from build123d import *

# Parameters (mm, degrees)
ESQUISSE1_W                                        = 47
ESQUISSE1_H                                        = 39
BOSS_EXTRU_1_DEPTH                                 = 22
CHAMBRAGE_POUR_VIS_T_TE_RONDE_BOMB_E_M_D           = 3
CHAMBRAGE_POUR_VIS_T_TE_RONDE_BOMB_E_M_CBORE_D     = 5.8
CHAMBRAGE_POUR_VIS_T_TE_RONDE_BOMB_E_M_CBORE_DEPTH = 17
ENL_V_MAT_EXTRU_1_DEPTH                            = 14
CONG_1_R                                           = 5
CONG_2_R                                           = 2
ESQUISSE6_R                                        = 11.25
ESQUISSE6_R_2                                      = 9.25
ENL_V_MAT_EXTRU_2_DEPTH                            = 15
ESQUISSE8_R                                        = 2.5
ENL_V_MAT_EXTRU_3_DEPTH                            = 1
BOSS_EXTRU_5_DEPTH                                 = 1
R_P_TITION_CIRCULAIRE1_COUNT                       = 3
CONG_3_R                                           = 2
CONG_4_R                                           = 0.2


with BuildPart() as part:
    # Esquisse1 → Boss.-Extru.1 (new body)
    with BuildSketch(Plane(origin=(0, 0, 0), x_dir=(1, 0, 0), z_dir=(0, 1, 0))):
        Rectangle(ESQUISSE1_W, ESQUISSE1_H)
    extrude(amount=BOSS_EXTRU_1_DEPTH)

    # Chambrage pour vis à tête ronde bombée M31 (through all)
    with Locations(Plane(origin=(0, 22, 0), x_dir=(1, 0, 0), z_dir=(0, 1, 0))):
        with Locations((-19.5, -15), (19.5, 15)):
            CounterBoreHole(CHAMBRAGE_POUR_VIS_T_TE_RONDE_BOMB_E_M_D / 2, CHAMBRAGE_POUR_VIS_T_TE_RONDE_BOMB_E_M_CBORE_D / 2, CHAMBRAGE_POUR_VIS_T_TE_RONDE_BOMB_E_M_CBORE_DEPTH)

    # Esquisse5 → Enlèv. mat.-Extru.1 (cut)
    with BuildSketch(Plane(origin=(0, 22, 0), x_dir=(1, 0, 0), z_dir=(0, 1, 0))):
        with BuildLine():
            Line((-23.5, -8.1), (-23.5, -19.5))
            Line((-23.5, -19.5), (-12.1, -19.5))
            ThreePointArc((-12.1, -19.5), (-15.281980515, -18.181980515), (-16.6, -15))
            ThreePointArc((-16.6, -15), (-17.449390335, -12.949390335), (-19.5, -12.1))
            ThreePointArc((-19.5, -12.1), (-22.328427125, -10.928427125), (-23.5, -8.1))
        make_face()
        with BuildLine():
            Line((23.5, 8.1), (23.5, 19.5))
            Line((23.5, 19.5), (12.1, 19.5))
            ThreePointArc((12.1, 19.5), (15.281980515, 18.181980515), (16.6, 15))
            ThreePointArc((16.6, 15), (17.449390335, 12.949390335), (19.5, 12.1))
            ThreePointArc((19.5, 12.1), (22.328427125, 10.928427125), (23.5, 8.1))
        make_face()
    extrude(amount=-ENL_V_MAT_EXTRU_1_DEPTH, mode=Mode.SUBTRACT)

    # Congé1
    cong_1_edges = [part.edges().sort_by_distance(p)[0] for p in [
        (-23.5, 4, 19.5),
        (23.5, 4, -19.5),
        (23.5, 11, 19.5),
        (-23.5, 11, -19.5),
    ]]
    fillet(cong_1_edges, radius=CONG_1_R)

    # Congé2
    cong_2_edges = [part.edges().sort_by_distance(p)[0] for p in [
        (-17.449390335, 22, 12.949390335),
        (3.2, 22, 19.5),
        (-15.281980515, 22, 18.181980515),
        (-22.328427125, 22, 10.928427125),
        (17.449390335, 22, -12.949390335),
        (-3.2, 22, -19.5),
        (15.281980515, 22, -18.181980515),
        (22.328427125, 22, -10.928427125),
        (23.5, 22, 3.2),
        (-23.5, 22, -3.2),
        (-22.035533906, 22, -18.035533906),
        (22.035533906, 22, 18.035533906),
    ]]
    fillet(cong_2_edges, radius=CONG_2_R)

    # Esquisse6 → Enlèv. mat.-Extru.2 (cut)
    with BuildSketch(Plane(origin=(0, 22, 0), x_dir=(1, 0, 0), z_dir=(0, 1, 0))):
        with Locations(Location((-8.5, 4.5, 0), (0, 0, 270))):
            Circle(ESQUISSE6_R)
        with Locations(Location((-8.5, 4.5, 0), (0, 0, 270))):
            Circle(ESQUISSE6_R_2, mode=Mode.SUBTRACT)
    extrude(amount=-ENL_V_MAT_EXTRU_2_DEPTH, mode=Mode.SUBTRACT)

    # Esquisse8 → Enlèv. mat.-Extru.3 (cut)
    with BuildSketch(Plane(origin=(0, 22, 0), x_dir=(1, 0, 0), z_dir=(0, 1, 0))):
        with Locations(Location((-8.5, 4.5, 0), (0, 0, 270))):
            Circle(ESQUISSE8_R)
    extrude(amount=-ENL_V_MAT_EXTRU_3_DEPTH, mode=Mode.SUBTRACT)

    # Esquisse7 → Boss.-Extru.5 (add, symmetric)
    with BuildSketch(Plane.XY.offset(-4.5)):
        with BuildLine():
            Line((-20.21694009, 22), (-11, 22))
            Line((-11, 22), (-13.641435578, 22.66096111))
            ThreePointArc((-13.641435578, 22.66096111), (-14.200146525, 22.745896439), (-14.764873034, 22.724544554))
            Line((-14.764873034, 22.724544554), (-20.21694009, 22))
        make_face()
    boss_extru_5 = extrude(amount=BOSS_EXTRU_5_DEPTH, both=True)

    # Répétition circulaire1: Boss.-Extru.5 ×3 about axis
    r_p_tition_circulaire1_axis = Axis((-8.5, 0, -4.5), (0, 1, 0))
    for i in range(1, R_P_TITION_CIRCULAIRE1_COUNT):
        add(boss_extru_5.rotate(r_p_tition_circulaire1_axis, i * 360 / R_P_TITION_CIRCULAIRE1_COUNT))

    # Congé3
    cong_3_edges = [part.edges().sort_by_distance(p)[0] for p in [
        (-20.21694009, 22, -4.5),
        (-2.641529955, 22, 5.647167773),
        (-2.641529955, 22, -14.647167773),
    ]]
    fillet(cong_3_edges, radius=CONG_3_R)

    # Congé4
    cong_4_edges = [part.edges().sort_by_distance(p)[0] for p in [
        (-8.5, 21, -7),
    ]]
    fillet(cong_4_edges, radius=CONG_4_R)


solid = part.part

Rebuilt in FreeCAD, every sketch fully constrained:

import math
import FreeCAD as App
import Part
import Sketcher

V = App.Vector
Q = App.Units.Quantity


def edges_at(feature, points):
    """Names of the edges that pass closest to the given points."""
    edges = feature.Shape.Edges
    near = lambda p: min(range(len(edges)), key=lambda i: edges[i].distToShape(Part.Vertex(*p))[0])
    return sorted({f"Edge{near(p) + 1}" for p in points})

doc = App.newDocument("Part")
body = doc.addObject("PartDesign::Body", "Body")

sketch1 = body.newObject("Sketcher::SketchObject", "Sketch")
sketch1.AttachmentSupport = (doc.getObject("XZ_Plane"), [""])
sketch1.MapMode = "FlatFace"
sketch1.addGeometry(Part.LineSegment(V(-24, -20, 0), V(-24, 20, 0)), False)
sketch1.addGeometry(Part.LineSegment(V(-24, 20, 0), V(24, 20, 0)), False)
sketch1.addGeometry(Part.LineSegment(V(24, 20, 0), V(24, -20, 0)), False)
sketch1.addGeometry(Part.LineSegment(V(24, -20, 0), V(-24, -20, 0)), False)
sketch1.addConstraint(Sketcher.Constraint("Coincident", 0, 2, 1, 1))
sketch1.addConstraint(Sketcher.Constraint("Coincident", 1, 2, 2, 1))
sketch1.addConstraint(Sketcher.Constraint("Coincident", 2, 2, 3, 1))
sketch1.addConstraint(Sketcher.Constraint("Coincident", 3, 2, 0, 1))
sketch1.addConstraint(Sketcher.Constraint("Vertical", 0))
sketch1.addConstraint(Sketcher.Constraint("Horizontal", 1))
sketch1.addConstraint(Sketcher.Constraint("Vertical", 2))
sketch1.addConstraint(Sketcher.Constraint("Horizontal", 3))
sketch1.addConstraint(Sketcher.Constraint("Symmetric", 0, 2, 2, 2, -1, 1))
sketch1.addConstraint(Sketcher.Constraint("DistanceX", 1, 1, 1, 2, Q("47 mm")))
sketch1.addConstraint(Sketcher.Constraint("DistanceY", 0, 1, 0, 2, Q("39 mm")))
pad1 = body.newObject("PartDesign::Pad", "Pad")
pad1.Profile = sketch1
pad1.Length = 22
pad1.Reversed = True

sketch2 = body.newObject("Sketcher::SketchObject", "Sketch001")
sketch2.AttachmentSupport = (doc.getObject("XZ_Plane"), [""])
sketch2.MapMode = "FlatFace"
sketch2.AttachmentOffset = App.Placement(V(0, 0, -22), App.Rotation())
sketch2.addGeometry(Part.Circle(V(-19.5, 15, 0), V(0, 0, 1), 1.5), False)
sketch2.addGeometry(Part.Circle(V(19.5, -15, 0), V(0, 0, 1), 1.5), False)
sketch2.addConstraint(Sketcher.Constraint("Equal", 0, 1))
sketch2.addConstraint(Sketcher.Constraint("Symmetric", 0, 3, 1, 3, -1, 1))
sketch2.addConstraint(Sketcher.Constraint("Diameter", 0, Q("3 mm")))
sketch2.addConstraint(Sketcher.Constraint("DistanceY", -1, 1, 0, 3, Q("15 mm")))
sketch2.addConstraint(Sketcher.Constraint("DistanceX", 0, 3, 1, 3, Q("39 mm")))
doc.recompute()
hole = body.newObject("PartDesign::Hole", "Hole")
hole.Profile = sketch2
hole.ThreadType = "None"
hole.Diameter = 3
hole.DepthType = "ThroughAll"
hole.HoleCutType = "Counterbore"
hole.HoleCutDiameter = 5.8
hole.HoleCutDepth = 17
hole.Reversed = True

sketch3 = body.newObject("Sketcher::SketchObject", "Sketch002")
sketch3.AttachmentSupport = (doc.getObject("XZ_Plane"), [""])
sketch3.MapMode = "FlatFace"
sketch3.AttachmentOffset = App.Placement(V(0, 0, -22), App.Rotation())
sketch3.addGeometry(Part.LineSegment(V(-23.5, 8.1, 0), V(-23.5, 19.5, 0)), False)
sketch3.addGeometry(Part.LineSegment(V(-23.5, 19.5, 0), V(-12.1, 19.5, 0)), False)
sketch3.addGeometry(Part.ArcOfCircle(Part.Circle(V(-12.1, 15, 0), V(0, 0, 1), 4.5), math.radians(90), math.radians(180)), False)
sketch3.addGeometry(Part.ArcOfCircle(Part.Circle(V(-19.5, 15, 0), V(0, 0, 1), 2.9), math.radians(-90), math.radians(0)), False)
sketch3.addGeometry(Part.ArcOfCircle(Part.Circle(V(-19.5, 8.1, 0), V(0, 0, 1), 4), math.radians(90), math.radians(180)), False)
sketch3.addGeometry(Part.LineSegment(V(23.5, -8.1, 0), V(23.5, -19.5, 0)), False)
sketch3.addGeometry(Part.LineSegment(V(23.5, -19.5, 0), V(12.1, -19.5, 0)), False)
sketch3.addGeometry(Part.ArcOfCircle(Part.Circle(V(12.1, -15, 0), V(0, 0, 1), 4.5), math.radians(-90), math.radians(0)), False)
sketch3.addGeometry(Part.ArcOfCircle(Part.Circle(V(19.5, -15, 0), V(0, 0, 1), 2.9), math.radians(90), math.radians(180)), False)
sketch3.addGeometry(Part.ArcOfCircle(Part.Circle(V(19.5, -8.1, 0), V(0, 0, 1), 4), math.radians(-90), math.radians(0)), False)
sketch3.addConstraint(Sketcher.Constraint("Coincident", 0, 2, 1, 1))
sketch3.addConstraint(Sketcher.Constraint("Tangent", 1, 2, 2, 1))
sketch3.addConstraint(Sketcher.Constraint("Tangent", 2, 2, 3, 2))
sketch3.addConstraint(Sketcher.Constraint("Tangent", 3, 1, 4, 1))
sketch3.addConstraint(Sketcher.Constraint("Tangent", 4, 2, 0, 1))
sketch3.addConstraint(Sketcher.Constraint("Coincident", 5, 2, 6, 1))
sketch3.addConstraint(Sketcher.Constraint("Tangent", 6, 2, 7, 1))
sketch3.addConstraint(Sketcher.Constraint("Tangent", 7, 2, 8, 2))
sketch3.addConstraint(Sketcher.Constraint("Tangent", 8, 1, 9, 1))
sketch3.addConstraint(Sketcher.Constraint("Tangent", 9, 2, 5, 1))
sketch3.addConstraint(Sketcher.Constraint("Vertical", 0))
sketch3.addConstraint(Sketcher.Constraint("Horizontal", 1))
sketch3.addConstraint(Sketcher.Constraint("Vertical", 5))
sketch3.addConstraint(Sketcher.Constraint("Horizontal", 6))
sketch3.addConstraint(Sketcher.Constraint("Equal", 2, 7))
sketch3.addConstraint(Sketcher.Constraint("Equal", 3, 8))
sketch3.addConstraint(Sketcher.Constraint("Equal", 4, 9))
sketch3.addConstraint(Sketcher.Constraint("Symmetric", 2, 3, 7, 3, -1, 1))
sketch3.addConstraint(Sketcher.Constraint("Symmetric", 4, 3, 9, 3, -1, 1))
sketch3.addConstraint(Sketcher.Constraint("Horizontal", 2, 3, 3, 3))
sketch3.addConstraint(Sketcher.Constraint("Vertical", 3, 3, 4, 3))
sketch3.addConstraint(Sketcher.Constraint("Radius", 4, Q("4 mm")))
sketch3.addConstraint(Sketcher.Constraint("Radius", 2, Q("4.5 mm")))
sketch3.addConstraint(Sketcher.Constraint("Radius", 3, Q("2.9 mm")))
sketch3.addConstraint(Sketcher.Constraint("DistanceY", -1, 1, 2, 3, Q("15 mm")))
sketch3.addConstraint(Sketcher.Constraint("DistanceX", 4, 3, 8, 3, Q("39 mm")))
pocket1 = body.newObject("PartDesign::Pocket", "Pocket")
pocket1.Profile = sketch3
pocket1.Length = 14
pocket1.Reversed = True
doc.recompute()

fillet = body.newObject("PartDesign::Fillet", "Fillet")
fillet.Base = (pocket1, edges_at(pocket1, [
    (-23.5, 4, 19.5),
    (23.5, 4, -19.5),
    (23.5, 11, 19.5),
    (-23.5, 11, -19.5),
]))
fillet.Radius = 5
doc.recompute()

fillet2 = body.newObject("PartDesign::Fillet", "Fillet001")
fillet2.Base = (fillet, edges_at(fillet, [
    (-17.449, 22, 12.949),
    (3.2, 22, 19.5),
    (-15.282, 22, 18.182),
    (-22.328, 22, 10.928),
    (17.449, 22, -12.949),
    (-3.2, 22, -19.5),
    (15.282, 22, -18.182),
    (22.328, 22, -10.928),
    (23.5, 22, 3.2),
    (-23.5, 22, -3.2),
    (-22.036, 22, -18.036),
    (22.036, 22, 18.036),
]))
fillet2.Radius = 2

sketch4 = body.newObject("Sketcher::SketchObject", "Sketch003")
sketch4.AttachmentSupport = (doc.getObject("XZ_Plane"), [""])
sketch4.MapMode = "FlatFace"
sketch4.AttachmentOffset = App.Placement(V(0, 0, -22), App.Rotation())
sketch4.addGeometry(Part.Circle(V(-8, -4, 0), V(0, 0, 1), 11), False)
sketch4.addGeometry(Part.Circle(V(-8, -4, 0), V(0, 0, 1), 9), False)
sketch4.addConstraint(Sketcher.Constraint("Coincident", 1, 3, 0, 3))
sketch4.addConstraint(Sketcher.Constraint("Diameter", 0, Q("22.5 mm")))
sketch4.addConstraint(Sketcher.Constraint("Diameter", 1, Q("18.5 mm")))
sketch4.addConstraint(Sketcher.Constraint("DistanceX", 0, 3, -1, 1, Q("8.5 mm")))
sketch4.addConstraint(Sketcher.Constraint("DistanceY", 0, 3, -1, 1, Q("4.5 mm")))
pocket2 = body.newObject("PartDesign::Pocket", "Pocket001")
pocket2.Profile = sketch4
pocket2.Length = 15
pocket2.Reversed = True

sketch5 = body.newObject("Sketcher::SketchObject", "Sketch004")
sketch5.AttachmentSupport = (doc.getObject("XZ_Plane"), [""])
sketch5.MapMode = "FlatFace"
sketch5.AttachmentOffset = App.Placement(V(0, 0, -22), App.Rotation())
sketch5.addGeometry(Part.Circle(V(-8.5, -4.5, 0), V(0, 0, 1), 2.5), False)
sketch5.addConstraint(Sketcher.Constraint("Diameter", 0, Q("5 mm")))
sketch5.addConstraint(Sketcher.Constraint("DistanceX", 0, 3, -1, 1, Q("8.5 mm")))
sketch5.addConstraint(Sketcher.Constraint("DistanceY", 0, 3, -1, 1, Q("4.5 mm")))
pocket3 = body.newObject("PartDesign::Pocket", "Pocket002")
pocket3.Profile = sketch5
pocket3.Length = 1
pocket3.Reversed = True

sketch6 = body.newObject("Sketcher::SketchObject", "Sketch005")
sketch6.AttachmentSupport = (doc.getObject("XY_Plane"), [""])
sketch6.MapMode = "FlatFace"
sketch6.AttachmentOffset = App.Placement(V(0, 0, -4.5), App.Rotation())
sketch6.addGeometry(Part.LineSegment(V(-20.2, 22, 0), V(-11, 22, 0)), False)
sketch6.addGeometry(Part.LineSegment(V(-11, 22, 0), V(-13.6, 22.7, 0)), False)
sketch6.addGeometry(Part.ArcOfCircle(Part.Circle(V(-14.4, 19.8, 0), V(0, 0, 1), 3), math.radians(76), math.radians(98)), False)
sketch6.addGeometry(Part.LineSegment(V(-14.8, 22.7, 0), V(-20.2, 22, 0)), False)
sketch6.addConstraint(Sketcher.Constraint("Coincident", 0, 2, 1, 1))
sketch6.addConstraint(Sketcher.Constraint("Tangent", 1, 2, 2, 1))
sketch6.addConstraint(Sketcher.Constraint("Tangent", 2, 2, 3, 1))
sketch6.addConstraint(Sketcher.Constraint("Coincident", 3, 2, 0, 1))
sketch6.addConstraint(Sketcher.Constraint("Horizontal", 0))
sketch6.addConstraint(Sketcher.Constraint("Radius", 2, Q("3 mm")))
sketch6.addConstraint(Sketcher.Constraint("DistanceX", 0, 2, -1, 1, Q("11 mm")))
sketch6.addConstraint(Sketcher.Constraint("DistanceY", -1, 1, 0, 2, Q("22 mm")))
sketch6.addConstraint(Sketcher.Constraint("Distance", 3, Q("5.5 mm")))
sketch6.addConstraint(Sketcher.Constraint("DistanceX", 0, 1, 0, 2, Q("9.21694 mm")))
sketch6.addConstraint(Sketcher.Constraint("DistanceY", -1, 1, 2, 3, Q("19.75069 mm")))
pad2 = body.newObject("PartDesign::Pad", "Pad001")
pad2.Profile = sketch6
pad2.Length = 2
pad2.Midplane = True
doc.recompute()

datumline = body.newObject("PartDesign::Line", "DatumLine")
datumline.Placement = App.Placement(V(-8.5, 0, -4.5), App.Rotation(V(0, 0, 1), V(0, 1, 0)))
polarpattern = body.newObject("PartDesign::PolarPattern", "PolarPattern")
polarpattern.Originals = [pad2]
polarpattern.Axis = (datumline, [""])
polarpattern.Angle = 360
polarpattern.Occurrences = 3
body.Tip = polarpattern
doc.recompute()

fillet3 = body.newObject("PartDesign::Fillet", "Fillet002")
fillet3.Base = (polarpattern, edges_at(polarpattern, [(-20.217, 22, -4.5), (-2.642, 22, 5.647), (-2.642, 22, -14.647)]))
fillet3.Radius = 2
doc.recompute()

fillet4 = body.newObject("PartDesign::Fillet", "Fillet003")
fillet4.Base = (fillet3, edges_at(fillet3, [(-8.5, 21, -7)]))
fillet4.Radius = 0.2

doc.recompute()
